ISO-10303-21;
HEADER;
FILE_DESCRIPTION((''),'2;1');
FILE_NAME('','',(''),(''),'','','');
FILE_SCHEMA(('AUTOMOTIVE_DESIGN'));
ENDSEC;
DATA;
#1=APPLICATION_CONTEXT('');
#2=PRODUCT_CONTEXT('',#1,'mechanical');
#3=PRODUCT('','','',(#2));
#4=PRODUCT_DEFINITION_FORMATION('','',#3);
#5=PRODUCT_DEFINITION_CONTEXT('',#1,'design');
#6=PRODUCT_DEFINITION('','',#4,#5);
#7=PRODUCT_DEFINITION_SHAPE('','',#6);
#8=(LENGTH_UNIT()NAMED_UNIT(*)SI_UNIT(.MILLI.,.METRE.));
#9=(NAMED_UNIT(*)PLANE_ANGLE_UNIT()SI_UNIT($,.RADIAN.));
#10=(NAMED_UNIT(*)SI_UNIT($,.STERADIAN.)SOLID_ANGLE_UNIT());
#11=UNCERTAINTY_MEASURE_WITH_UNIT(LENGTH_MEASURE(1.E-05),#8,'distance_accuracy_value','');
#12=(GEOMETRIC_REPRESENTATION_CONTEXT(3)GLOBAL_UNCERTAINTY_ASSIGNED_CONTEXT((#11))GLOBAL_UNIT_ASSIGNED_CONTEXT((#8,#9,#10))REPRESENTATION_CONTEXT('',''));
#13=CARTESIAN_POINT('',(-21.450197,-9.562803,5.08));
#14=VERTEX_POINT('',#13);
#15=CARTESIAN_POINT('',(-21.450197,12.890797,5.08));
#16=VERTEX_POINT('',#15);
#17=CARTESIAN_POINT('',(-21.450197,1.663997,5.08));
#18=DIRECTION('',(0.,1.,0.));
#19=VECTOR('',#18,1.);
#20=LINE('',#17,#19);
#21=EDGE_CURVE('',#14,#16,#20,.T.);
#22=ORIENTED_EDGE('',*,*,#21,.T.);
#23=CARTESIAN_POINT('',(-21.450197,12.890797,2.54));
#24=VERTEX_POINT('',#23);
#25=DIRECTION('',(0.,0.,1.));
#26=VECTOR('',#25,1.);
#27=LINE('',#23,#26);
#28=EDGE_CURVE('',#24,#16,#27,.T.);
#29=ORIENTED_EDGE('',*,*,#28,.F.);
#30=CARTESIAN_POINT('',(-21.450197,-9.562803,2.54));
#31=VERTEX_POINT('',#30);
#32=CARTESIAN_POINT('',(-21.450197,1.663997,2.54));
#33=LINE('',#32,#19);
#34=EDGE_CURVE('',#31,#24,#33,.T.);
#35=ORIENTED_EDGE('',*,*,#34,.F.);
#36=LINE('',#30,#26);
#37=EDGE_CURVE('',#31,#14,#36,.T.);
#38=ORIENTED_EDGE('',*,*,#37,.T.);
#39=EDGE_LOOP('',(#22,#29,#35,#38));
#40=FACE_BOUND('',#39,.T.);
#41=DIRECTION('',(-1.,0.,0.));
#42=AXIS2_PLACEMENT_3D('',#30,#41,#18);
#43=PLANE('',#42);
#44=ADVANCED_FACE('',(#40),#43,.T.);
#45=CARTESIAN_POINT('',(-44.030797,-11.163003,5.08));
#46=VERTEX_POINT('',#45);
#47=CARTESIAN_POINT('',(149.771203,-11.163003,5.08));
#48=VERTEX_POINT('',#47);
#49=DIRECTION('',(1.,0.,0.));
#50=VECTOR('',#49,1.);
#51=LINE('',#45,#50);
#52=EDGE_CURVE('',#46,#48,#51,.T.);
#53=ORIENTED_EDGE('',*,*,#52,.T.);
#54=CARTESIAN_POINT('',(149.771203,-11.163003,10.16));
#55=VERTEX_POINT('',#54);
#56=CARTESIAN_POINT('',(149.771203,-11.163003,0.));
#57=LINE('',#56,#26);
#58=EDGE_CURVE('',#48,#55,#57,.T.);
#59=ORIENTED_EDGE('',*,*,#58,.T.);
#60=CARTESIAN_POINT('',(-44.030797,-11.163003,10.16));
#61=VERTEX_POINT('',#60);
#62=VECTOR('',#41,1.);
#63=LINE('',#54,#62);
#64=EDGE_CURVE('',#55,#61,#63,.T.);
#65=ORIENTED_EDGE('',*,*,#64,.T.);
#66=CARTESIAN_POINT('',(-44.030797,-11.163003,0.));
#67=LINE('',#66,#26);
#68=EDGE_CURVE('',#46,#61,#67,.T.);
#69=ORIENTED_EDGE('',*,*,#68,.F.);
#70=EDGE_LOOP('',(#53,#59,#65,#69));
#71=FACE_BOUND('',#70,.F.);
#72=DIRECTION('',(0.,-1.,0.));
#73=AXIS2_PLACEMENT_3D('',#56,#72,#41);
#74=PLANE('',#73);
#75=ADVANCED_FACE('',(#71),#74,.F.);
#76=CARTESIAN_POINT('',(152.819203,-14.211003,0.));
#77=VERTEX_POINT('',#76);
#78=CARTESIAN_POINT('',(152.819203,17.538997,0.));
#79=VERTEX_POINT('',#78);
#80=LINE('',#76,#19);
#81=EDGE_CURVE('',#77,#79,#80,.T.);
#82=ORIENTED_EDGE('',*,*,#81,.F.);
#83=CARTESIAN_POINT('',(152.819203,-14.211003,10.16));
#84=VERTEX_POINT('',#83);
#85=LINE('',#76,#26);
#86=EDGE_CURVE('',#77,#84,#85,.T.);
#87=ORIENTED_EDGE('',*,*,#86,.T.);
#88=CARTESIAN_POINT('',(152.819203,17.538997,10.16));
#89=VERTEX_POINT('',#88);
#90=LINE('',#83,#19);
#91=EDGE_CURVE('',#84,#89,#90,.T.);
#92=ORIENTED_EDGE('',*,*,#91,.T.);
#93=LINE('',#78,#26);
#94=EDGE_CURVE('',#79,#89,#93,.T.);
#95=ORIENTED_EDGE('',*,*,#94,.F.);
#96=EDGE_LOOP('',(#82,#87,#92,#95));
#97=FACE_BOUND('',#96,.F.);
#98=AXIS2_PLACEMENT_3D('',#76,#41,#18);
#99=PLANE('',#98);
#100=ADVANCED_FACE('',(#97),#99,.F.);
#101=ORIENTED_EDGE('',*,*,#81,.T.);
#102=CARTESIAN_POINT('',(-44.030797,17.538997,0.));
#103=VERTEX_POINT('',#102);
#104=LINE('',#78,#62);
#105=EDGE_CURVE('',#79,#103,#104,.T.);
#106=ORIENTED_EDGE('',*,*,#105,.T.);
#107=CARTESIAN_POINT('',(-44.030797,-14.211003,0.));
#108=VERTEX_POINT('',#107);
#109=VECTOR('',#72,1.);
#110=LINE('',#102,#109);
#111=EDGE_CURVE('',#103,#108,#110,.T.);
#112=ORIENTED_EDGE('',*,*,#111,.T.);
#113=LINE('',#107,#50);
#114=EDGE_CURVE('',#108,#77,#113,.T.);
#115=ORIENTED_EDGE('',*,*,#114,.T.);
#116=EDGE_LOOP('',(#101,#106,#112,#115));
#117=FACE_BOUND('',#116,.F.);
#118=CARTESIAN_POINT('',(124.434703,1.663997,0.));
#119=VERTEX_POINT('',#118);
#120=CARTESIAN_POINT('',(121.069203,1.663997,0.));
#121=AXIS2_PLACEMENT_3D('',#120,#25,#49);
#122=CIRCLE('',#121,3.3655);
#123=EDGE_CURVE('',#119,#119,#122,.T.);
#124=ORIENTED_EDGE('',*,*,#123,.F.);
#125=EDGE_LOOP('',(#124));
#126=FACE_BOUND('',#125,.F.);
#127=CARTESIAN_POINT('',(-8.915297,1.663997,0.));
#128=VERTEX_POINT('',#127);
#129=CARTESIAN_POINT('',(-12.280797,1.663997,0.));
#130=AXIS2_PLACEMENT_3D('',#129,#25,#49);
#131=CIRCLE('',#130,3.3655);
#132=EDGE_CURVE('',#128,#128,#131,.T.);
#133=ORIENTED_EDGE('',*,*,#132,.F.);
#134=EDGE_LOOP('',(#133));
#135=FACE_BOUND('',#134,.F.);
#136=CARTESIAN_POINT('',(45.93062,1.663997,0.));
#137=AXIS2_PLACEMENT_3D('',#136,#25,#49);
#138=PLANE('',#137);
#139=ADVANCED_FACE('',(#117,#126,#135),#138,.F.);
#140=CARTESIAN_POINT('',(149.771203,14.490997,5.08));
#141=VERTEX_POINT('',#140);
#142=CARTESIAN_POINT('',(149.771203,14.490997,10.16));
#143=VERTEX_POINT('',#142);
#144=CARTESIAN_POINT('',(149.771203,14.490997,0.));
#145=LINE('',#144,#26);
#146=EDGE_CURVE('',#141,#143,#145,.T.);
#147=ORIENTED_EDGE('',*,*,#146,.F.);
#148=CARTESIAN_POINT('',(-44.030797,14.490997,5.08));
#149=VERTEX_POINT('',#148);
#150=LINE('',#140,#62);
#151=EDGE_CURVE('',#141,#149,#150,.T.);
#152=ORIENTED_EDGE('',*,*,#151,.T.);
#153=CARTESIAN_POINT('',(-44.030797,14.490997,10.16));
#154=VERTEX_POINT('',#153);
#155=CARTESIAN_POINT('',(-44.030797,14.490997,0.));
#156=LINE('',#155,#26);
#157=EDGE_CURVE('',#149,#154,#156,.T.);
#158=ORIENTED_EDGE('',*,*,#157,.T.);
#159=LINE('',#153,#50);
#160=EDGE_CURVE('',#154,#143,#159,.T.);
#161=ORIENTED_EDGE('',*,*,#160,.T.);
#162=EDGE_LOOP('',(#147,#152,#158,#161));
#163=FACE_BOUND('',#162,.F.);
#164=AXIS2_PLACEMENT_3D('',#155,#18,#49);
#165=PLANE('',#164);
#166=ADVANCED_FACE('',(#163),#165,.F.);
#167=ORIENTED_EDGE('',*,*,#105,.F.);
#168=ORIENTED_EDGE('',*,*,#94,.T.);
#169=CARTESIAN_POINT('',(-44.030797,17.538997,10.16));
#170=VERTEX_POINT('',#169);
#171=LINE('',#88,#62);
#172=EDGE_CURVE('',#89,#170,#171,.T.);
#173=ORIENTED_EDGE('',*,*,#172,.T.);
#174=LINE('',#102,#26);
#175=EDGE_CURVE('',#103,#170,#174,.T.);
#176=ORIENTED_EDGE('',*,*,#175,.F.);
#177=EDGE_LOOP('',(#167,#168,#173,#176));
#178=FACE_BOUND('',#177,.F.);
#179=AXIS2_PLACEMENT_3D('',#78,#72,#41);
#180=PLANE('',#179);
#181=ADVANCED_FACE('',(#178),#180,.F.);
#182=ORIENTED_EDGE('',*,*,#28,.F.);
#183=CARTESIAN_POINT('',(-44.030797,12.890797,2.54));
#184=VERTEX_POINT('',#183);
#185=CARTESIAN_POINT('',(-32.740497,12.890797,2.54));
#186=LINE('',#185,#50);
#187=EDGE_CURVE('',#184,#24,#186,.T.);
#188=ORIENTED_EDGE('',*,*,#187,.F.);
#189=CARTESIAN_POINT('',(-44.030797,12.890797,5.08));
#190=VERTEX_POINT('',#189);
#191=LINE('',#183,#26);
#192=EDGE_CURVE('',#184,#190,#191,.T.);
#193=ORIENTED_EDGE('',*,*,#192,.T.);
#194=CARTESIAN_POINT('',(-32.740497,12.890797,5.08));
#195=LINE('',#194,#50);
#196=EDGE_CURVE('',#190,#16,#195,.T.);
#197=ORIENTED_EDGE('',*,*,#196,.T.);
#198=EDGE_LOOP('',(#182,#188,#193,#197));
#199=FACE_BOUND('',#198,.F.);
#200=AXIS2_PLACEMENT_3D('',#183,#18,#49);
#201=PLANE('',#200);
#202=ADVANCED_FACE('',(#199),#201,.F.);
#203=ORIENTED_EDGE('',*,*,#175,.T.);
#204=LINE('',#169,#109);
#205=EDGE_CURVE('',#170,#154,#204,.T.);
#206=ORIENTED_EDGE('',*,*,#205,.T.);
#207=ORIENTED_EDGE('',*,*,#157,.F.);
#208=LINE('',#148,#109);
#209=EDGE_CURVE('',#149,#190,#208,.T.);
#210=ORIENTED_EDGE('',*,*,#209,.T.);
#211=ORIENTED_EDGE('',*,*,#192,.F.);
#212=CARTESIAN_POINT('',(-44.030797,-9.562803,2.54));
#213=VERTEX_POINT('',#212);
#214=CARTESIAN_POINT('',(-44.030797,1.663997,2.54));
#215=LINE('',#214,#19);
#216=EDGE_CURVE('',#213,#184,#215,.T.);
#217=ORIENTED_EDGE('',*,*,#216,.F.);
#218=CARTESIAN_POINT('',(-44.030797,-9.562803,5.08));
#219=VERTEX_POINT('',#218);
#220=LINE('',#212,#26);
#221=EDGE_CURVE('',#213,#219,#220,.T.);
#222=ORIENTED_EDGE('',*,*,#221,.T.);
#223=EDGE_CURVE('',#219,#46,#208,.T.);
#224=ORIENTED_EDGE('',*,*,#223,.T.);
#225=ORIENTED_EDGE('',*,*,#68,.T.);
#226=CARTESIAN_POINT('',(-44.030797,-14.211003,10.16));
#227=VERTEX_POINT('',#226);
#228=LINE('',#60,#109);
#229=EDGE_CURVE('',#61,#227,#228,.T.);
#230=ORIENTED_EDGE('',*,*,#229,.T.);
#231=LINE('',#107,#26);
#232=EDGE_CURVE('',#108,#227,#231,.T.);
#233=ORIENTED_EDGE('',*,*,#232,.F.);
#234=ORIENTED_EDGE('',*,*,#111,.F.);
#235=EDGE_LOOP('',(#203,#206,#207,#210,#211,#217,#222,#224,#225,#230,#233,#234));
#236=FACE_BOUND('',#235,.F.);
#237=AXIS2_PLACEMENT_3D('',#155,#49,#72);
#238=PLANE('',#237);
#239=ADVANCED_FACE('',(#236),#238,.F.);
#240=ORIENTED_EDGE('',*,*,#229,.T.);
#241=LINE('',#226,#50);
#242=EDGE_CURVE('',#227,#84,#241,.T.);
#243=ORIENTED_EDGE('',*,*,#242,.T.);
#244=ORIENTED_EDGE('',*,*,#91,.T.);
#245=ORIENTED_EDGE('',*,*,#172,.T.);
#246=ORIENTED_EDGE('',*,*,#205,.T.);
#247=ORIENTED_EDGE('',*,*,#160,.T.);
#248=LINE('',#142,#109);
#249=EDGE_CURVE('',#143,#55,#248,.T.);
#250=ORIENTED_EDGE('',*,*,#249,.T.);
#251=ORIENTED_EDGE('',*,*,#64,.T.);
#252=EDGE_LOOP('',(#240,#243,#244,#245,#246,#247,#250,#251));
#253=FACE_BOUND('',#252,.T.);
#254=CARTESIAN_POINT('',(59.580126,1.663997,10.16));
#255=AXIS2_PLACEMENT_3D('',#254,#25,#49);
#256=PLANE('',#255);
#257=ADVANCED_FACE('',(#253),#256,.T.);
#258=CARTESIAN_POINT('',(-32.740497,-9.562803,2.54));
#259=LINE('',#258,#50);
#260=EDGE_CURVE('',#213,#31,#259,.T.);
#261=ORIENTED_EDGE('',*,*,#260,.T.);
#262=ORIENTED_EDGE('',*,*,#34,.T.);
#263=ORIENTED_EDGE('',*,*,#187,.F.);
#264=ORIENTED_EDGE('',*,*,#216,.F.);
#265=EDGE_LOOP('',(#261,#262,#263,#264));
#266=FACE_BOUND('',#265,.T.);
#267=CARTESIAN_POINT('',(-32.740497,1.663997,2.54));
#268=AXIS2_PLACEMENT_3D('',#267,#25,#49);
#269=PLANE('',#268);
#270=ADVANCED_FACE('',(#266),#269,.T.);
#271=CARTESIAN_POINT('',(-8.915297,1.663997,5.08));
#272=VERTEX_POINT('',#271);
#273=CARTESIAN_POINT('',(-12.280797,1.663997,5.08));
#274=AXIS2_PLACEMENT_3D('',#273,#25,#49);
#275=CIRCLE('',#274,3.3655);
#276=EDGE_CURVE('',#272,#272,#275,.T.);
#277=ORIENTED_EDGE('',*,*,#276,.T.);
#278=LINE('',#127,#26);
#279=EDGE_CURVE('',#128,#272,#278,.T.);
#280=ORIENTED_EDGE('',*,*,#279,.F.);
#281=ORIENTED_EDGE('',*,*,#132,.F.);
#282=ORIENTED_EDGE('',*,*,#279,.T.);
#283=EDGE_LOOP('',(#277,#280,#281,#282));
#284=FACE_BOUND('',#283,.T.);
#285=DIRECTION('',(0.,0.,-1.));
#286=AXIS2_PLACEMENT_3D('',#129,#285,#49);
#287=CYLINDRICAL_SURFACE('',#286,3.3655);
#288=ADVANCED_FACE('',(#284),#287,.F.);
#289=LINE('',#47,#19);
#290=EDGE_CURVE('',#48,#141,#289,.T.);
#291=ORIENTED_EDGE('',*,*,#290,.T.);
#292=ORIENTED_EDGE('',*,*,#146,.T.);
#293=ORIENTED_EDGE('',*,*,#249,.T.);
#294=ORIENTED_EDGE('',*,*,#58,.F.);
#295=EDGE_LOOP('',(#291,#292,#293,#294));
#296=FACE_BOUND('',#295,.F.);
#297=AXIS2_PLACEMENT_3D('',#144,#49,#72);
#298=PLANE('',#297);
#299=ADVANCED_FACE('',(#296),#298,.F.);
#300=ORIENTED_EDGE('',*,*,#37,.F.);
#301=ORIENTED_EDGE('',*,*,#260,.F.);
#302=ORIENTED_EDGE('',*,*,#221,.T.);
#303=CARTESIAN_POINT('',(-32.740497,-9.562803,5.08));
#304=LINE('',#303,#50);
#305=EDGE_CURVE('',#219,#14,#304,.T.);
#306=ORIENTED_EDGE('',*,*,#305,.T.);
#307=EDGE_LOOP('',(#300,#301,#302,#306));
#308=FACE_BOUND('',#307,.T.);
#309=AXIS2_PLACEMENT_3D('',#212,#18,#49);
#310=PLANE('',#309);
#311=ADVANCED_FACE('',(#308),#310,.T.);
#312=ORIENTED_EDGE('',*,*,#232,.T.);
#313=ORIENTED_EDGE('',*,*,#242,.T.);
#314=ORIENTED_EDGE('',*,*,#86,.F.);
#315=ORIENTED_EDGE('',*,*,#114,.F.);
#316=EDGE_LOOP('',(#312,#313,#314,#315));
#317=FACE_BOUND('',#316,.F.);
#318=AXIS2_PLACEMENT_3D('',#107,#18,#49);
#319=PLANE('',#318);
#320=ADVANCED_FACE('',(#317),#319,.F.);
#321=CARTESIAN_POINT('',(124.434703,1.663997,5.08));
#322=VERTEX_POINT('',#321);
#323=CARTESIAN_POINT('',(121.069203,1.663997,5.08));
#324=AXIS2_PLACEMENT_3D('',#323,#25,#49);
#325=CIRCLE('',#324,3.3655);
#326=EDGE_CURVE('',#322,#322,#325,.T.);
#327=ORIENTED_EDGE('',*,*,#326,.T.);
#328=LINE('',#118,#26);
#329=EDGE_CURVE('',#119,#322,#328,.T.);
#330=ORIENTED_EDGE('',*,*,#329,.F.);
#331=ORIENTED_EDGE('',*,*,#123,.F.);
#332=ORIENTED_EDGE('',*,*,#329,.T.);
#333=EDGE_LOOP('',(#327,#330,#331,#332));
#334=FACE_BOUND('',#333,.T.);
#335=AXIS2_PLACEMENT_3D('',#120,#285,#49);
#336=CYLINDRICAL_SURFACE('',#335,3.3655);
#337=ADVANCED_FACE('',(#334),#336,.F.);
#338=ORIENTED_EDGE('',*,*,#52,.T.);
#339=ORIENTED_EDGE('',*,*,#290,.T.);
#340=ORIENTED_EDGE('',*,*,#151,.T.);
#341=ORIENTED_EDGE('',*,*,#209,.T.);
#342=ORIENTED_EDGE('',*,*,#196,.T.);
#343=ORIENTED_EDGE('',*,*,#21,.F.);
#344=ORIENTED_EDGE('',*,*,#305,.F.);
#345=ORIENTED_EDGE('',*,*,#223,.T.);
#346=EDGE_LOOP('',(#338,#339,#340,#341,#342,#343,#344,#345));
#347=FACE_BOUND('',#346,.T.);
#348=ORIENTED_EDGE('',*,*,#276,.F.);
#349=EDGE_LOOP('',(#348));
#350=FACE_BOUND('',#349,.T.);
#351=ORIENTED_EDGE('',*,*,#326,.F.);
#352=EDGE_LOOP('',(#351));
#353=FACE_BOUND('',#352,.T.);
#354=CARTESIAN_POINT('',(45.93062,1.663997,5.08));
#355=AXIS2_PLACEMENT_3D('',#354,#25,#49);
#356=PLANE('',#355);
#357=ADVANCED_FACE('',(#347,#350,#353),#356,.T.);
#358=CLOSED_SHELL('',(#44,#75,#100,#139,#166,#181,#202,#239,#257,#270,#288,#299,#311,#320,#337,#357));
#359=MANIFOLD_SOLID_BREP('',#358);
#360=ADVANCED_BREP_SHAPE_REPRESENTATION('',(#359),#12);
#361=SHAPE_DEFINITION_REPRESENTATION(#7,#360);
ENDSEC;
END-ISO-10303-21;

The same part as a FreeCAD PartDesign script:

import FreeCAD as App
import Part
import Sketcher
Q = App.Units.Quantity


def add_polygon(sketch, points):
    """Adds a closed chain of lines whose ends are joined by coincident constraints."""
    first, n = sketch.GeometryCount, len(points)
    for a, b in zip(points, points[1:] + points[:1]):
        sketch.addGeometry(Part.LineSegment(App.Vector(*a, 0), App.Vector(*b, 0)), False)
    for i in range(n):
        sketch.addConstraint(Sketcher.Constraint("Coincident", first + i, 2, first + (i + 1) % n, 1))

doc = App.newDocument("Part")
body = doc.addObject("PartDesign::Body", "Body")

sketch1 = body.newObject("Sketcher::SketchObject", "Sketch")
sketch1.AttachmentSupport = (doc.getObject("XY_Plane"), [""])
sketch1.MapMode = "FlatFace"
add_polygon(sketch1, [(-44.030797, -11.163003), (-44.030797, -14.211003), (152.819203, -14.211003), (152.819203, 17.538997), (-44.030797, 17.538997), (-44.030797, 14.490997), (149.771203, 14.490997), (149.771203, -11.163003)])
sketch1.addConstraint(Sketcher.Constraint("Vertical", 0))
sketch1.addConstraint(Sketcher.Constraint("Horizontal", 1))
sketch1.addConstraint(Sketcher.Constraint("Vertical", 2))
sketch1.addConstraint(Sketcher.Constraint("Horizontal", 3))
sketch1.addConstraint(Sketcher.Constraint("Vertical", 4))
sketch1.addConstraint(Sketcher.Constraint("Horizontal", 5))
sketch1.addConstraint(Sketcher.Constraint("Vertical", 6))
sketch1.addConstraint(Sketcher.Constraint("Horizontal", 7))
sketch1.addConstraint(Sketcher.Constraint("Vertical", 0, 2, 3, 2))
sketch1.addConstraint(Sketcher.Constraint("Equal", 0, 4))
sketch1.addConstraint(Sketcher.Constraint("DistanceX", 1, 1, 1, 2, Q("7.75 in")))
sketch1.addConstraint(Sketcher.Constraint("DistanceX", 5, 1, 5, 2, Q("7.63 in")))
sketch1.addConstraint(Sketcher.Constraint("DistanceY", 0, 2, 0, 1, Q("0.12 in")))
sketch1.addConstraint(Sketcher.Constraint("DistanceY", 2, 1, 2, 2, Q("1.25 in")))
sketch1.addConstraint(Sketcher.Constraint("DistanceX", 0, 2, -1, 1, 44.030797))
sketch1.addConstraint(Sketcher.Constraint("DistanceY", 0, 2, -1, 1, 14.211003))
pad1 = body.newObject("PartDesign::Pad", "Pad")
pad1.Profile = sketch1
pad1.Length = Q("0.4 in")

sketch2 = body.newObject("Sketcher::SketchObject", "Sketch001")
sketch2.AttachmentSupport = (doc.getObject("XY_Plane"), [""])
sketch2.MapMode = "FlatFace"
add_polygon(sketch2, [(-44.030797, -11.163003), (149.771203, -11.163003), (149.771203, 14.490997), (-44.030797, 14.490997)])
sketch2.addGeometry(Part.Circle(App.Vector(-12.280797, 1.663997, 0), App.Vector(0, 0, 1), 3.3655), False)
sketch2.addGeometry(Part.Circle(App.Vector(121.069203, 1.663997, 0), App.Vector(0, 0, 1), 3.3655), False)
sketch2.addConstraint(Sketcher.Constraint("Horizontal", 0))
sketch2.addConstraint(Sketcher.Constraint("Vertical", 1))
sketch2.addConstraint(Sketcher.Constraint("Horizontal", 2))
sketch2.addConstraint(Sketcher.Constraint("Vertical", 3))
sketch2.addConstraint(Sketcher.Constraint("Equal", 4, 5))
sketch2.addConstraint(Sketcher.Constraint("Horizontal", 4, 3, 5, 3))
sketch2.addConstraint(Sketcher.Constraint("Diameter", 4, Q("0.265 in")))
sketch2.addConstraint(Sketcher.Constraint("DistanceX", 0, 1, 0, 2, Q("7.63 in")))
sketch2.addConstraint(Sketcher.Constraint("DistanceY", 1, 1, 1, 2, Q("1.01 in")))
sketch2.addConstraint(Sketcher.Constraint("DistanceX", 2, 2, 5, 3, Q("6.5 in")))
sketch2.addConstraint(Sketcher.Constraint("DistanceX", 4, 3, 5, 3, Q("5.25 in")))
sketch2.addConstraint(Sketcher.Constraint("DistanceY", 0, 2, 5, 3, Q("0.505 in")))
sketch2.addConstraint(Sketcher.Constraint("DistanceX", 4, 3, -1, 1, 12.280797))
sketch2.addConstraint(Sketcher.Constraint("DistanceY", -1, 1, 4, 3, 1.663997))
pad2 = body.newObject("PartDesign::Pad", "Pad001")
pad2.Profile = sketch2
pad2.Length = Q("0.2 in")

sketch3 = body.newObject("Sketcher::SketchObject", "Sketch002")
sketch3.AttachmentSupport = (doc.getObject("XY_Plane"), [""])
sketch3.MapMode = "FlatFace"
sketch3.AttachmentOffset = App.Placement(App.Vector(0, 0, 0.1 * 25.4), App.Rotation())
add_polygon(sketch3, [(-44.030797, 12.890797), (-44.030797, -9.562803), (-21.450197, -9.562803), (-21.450197, 12.890797)])
sketch3.addConstraint(Sketcher.Constraint("Vertical", 0))
sketch3.addConstraint(Sketcher.Constraint("Horizontal", 1))
sketch3.addConstraint(Sketcher.Constraint("Vertical", 2))
sketch3.addConstraint(Sketcher.Constraint("Horizontal", 3))
sketch3.addConstraint(Sketcher.Constraint("DistanceX", 1, 1, 1, 2, Q("0.889 in")))
sketch3.addConstraint(Sketcher.Constraint("DistanceY", 0, 2, 0, 1, Q("0.884 in")))
sketch3.addConstraint(Sketcher.Constraint("DistanceX", 0, 2, -1, 1, 44.030797))
sketch3.addConstraint(Sketcher.Constraint("DistanceY", 0, 2, -1, 1, 9.562803))
pocket1 = body.newObject("PartDesign::Pocket", "Pocket")
pocket1.Profile = sketch3
pocket1.Length = Q("0.1 in")
pocket1.Reversed = True

doc.recompute()
